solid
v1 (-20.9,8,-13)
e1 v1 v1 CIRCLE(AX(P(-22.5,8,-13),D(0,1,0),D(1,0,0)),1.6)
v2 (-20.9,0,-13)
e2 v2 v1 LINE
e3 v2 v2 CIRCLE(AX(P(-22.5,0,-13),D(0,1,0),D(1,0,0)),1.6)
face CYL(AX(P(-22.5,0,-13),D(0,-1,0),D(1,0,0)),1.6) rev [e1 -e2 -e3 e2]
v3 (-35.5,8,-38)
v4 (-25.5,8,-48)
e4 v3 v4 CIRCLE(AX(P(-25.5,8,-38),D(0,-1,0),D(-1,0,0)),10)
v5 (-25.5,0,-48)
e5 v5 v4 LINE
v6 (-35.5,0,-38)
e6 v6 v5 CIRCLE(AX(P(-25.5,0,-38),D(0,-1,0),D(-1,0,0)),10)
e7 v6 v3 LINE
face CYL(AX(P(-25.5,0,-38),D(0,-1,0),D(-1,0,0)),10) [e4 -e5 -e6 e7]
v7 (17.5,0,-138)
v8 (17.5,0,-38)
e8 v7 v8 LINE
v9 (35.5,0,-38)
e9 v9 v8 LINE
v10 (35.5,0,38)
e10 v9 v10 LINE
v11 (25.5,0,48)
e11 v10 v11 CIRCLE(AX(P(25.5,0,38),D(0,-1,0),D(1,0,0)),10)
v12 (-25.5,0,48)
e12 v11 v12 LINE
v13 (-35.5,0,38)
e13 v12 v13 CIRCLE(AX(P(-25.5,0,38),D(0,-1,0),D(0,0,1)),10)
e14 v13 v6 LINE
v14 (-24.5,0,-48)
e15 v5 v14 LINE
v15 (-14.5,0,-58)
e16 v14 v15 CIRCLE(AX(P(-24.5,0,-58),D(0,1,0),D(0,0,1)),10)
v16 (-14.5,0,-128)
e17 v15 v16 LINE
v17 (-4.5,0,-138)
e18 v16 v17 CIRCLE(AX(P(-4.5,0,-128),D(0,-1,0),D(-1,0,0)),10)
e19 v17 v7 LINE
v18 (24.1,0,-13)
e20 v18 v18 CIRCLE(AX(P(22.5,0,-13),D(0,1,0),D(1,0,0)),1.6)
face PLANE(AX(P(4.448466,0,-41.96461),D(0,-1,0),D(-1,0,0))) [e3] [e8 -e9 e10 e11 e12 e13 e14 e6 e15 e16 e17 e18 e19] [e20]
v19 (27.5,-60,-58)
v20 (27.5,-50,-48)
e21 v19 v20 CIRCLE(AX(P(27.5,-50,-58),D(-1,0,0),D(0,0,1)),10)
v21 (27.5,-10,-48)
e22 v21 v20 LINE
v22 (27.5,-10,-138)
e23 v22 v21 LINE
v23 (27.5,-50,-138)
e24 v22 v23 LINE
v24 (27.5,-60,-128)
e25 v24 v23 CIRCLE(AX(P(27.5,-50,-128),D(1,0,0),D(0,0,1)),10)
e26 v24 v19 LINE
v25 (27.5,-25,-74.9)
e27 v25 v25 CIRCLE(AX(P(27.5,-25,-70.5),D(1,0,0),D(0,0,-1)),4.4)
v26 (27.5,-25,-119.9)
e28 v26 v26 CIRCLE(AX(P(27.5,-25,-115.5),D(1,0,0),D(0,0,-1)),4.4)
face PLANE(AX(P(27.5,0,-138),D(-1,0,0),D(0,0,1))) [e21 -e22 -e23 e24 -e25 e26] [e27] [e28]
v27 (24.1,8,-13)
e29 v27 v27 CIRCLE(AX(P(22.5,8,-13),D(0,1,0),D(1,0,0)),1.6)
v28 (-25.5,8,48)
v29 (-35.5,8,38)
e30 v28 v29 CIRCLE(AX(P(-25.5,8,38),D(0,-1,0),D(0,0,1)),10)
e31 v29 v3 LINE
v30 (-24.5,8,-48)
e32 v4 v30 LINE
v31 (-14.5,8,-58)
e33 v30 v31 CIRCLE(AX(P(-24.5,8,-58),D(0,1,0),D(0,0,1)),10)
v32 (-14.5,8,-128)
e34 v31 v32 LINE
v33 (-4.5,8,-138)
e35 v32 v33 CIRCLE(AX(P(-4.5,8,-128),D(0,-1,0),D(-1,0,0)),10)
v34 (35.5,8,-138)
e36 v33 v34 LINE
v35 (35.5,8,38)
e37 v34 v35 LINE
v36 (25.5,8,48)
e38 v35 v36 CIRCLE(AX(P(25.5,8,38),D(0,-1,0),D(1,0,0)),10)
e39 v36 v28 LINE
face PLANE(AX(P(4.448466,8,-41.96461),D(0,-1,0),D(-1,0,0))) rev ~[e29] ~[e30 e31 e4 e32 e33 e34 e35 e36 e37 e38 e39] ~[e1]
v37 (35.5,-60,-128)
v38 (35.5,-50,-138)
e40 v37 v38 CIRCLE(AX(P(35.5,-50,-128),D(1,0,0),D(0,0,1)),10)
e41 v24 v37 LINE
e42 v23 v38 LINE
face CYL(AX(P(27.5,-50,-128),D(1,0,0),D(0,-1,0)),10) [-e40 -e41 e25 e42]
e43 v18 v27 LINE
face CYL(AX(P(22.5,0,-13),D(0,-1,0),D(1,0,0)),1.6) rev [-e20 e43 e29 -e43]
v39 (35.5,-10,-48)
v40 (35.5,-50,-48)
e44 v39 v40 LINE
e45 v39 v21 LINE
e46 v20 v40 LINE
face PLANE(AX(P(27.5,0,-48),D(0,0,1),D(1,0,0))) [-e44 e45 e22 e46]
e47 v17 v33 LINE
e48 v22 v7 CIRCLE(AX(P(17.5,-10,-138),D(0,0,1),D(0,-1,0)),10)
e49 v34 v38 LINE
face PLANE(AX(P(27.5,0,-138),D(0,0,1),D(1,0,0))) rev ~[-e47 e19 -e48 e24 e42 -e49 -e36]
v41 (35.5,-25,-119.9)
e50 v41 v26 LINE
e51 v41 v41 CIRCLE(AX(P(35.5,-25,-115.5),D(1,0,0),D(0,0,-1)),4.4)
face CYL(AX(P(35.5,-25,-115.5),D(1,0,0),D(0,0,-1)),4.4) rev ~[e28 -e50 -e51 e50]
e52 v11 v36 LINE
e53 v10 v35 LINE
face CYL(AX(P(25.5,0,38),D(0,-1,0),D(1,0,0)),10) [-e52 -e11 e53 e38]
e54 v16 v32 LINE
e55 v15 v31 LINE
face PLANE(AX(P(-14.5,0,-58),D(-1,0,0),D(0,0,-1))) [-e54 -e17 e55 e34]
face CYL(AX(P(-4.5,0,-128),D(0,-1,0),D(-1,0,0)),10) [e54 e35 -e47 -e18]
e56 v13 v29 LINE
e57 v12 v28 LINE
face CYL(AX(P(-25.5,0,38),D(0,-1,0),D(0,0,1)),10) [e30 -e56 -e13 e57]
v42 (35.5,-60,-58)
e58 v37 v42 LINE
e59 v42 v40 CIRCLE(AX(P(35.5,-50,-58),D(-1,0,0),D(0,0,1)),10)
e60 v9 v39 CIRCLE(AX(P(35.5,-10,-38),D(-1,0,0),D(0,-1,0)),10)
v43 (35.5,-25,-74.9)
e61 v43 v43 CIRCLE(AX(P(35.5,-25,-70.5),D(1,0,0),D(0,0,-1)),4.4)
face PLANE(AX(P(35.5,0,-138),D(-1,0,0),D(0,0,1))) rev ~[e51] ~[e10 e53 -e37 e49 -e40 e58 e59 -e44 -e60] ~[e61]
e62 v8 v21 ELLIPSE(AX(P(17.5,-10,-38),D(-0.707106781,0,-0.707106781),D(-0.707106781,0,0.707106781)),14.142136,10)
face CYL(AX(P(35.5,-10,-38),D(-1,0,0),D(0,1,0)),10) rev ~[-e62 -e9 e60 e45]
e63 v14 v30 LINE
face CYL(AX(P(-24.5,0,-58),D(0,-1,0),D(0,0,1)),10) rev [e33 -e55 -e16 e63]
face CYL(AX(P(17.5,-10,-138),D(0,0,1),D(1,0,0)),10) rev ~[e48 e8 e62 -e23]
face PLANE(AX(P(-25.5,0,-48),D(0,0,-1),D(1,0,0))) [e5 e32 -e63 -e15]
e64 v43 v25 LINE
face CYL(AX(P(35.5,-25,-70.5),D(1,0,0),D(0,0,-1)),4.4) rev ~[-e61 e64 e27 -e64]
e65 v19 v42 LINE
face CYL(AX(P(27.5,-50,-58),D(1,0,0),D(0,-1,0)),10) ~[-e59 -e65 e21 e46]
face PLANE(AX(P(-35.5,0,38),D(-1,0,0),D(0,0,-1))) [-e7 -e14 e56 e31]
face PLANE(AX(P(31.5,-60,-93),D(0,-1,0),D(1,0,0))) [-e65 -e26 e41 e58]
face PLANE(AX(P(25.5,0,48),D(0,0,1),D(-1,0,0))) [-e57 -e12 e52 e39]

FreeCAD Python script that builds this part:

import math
import FreeCAD as App
import Part
import Sketcher

V = App.Vector
Q = App.Units.Quantity


def edges_at(feature, points):
    """Names of the edges that pass closest to the given points."""
    edges = feature.Shape.Edges
    near = lambda p: min(range(len(edges)), key=lambda i: edges[i].distToShape(Part.Vertex(*p))[0])
    return sorted({f"Edge{near(p) + 1}" for p in points})


def add_polygon(sketch, points):
    """Adds a closed chain of lines whose ends are joined by coincident constraints."""
    first, n = sketch.GeometryCount, len(points)
    for a, b in zip(points, points[1:] + points[:1]):
        sketch.addGeometry(Part.LineSegment(App.Vector(*a, 0), App.Vector(*b, 0)), False)
    for i in range(n):
        sketch.addConstraint(Sketcher.Constraint("Coincident", first + i, 2, first + (i + 1) % n, 1))

doc = App.newDocument("Part")
body = doc.addObject("PartDesign::Body", "Body")

sketch1 = body.newObject("Sketcher::SketchObject", "Sketch")
sketch1.AttachmentSupport = (doc.getObject("XZ_Plane"), [""])
sketch1.MapMode = "FlatFace"
sketch1.addGeometry([
    Part.LineSegment(V(-24.5, -48, 0), V(-25.5, -48, 0)),
    Part.ArcOfCircle(Part.Circle(V(-25.5, -38, 0), V(0, 0, 1), 10), math.radians(180), math.radians(270)),
    Part.LineSegment(V(-35.5, -38, 0), V(-35.5, 38, 0)),
    Part.ArcOfCircle(Part.Circle(V(-25.5, 38, 0), V(0, 0, 1), 10), math.radians(90), math.radians(180)),
    Part.LineSegment(V(-25.5, 48, 0), V(25.5, 48, 0)),
    Part.ArcOfCircle(Part.Circle(V(25.5, 38, 0), V(0, 0, 1), 10), math.radians(0), math.radians(90)),
    Part.LineSegment(V(35.5, 38, 0), V(35.5, -138, 0)),
    Part.LineSegment(V(35.5, -138, 0), V(-4.5, -138, 0)),
    Part.ArcOfCircle(Part.Circle(V(-4.5, -128, 0), V(0, 0, 1), 10), math.radians(180), math.radians(270)),
    Part.LineSegment(V(-14.5, -128, 0), V(-14.5, -58, 0)),
    Part.ArcOfCircle(Part.Circle(V(-24.5, -58, 0), V(0, 0, 1), 10), math.radians(0), math.radians(90)),
    Part.Circle(V(22.5, -13, 0), V(0, 0, 1), 1.6),
    Part.Circle(V(-22.5, -13, 0), V(0, 0, 1), 1.6),
], False)
sketch1.addConstraint([
    Sketcher.Constraint("Tangent", 0, 2, 1, 2),
    Sketcher.Constraint("Tangent", 1, 1, 2, 1),
    Sketcher.Constraint("Tangent", 2, 2, 3, 2),
    Sketcher.Constraint("Tangent", 3, 1, 4, 1),
    Sketcher.Constraint("Tangent", 4, 2, 5, 2),
    Sketcher.Constraint("Tangent", 5, 1, 6, 1),
    Sketcher.Constraint("Coincident", 6, 2, 7, 1),
    Sketcher.Constraint("Tangent", 7, 2, 8, 2),
    Sketcher.Constraint("Tangent", 8, 1, 9, 1),
    Sketcher.Constraint("Tangent", 9, 2, 10, 1),
    Sketcher.Constraint("Tangent", 10, 2, 0, 1),
    Sketcher.Constraint("Horizontal", 0),
    Sketcher.Constraint("Vertical", 2),
    Sketcher.Constraint("Horizontal", 4),
    Sketcher.Constraint("Vertical", 6),
    Sketcher.Constraint("Horizontal", 7),
    Sketcher.Constraint("Vertical", 9),
    Sketcher.Constraint("Equal", 1, 3),
    Sketcher.Constraint("Equal", 3, 5),
    Sketcher.Constraint("Equal", 5, 8),
    Sketcher.Constraint("Equal", 8, 10),
    Sketcher.Constraint("Equal", 11, 12),
    Sketcher.Constraint("Symmetric", 1, 3, 5, 3, -1, 1),
    Sketcher.Constraint("Symmetric", 11, 3, 12, 3, -2),
    Sketcher.Constraint("Radius", 1, Q("10 mm")),
    Sketcher.Constraint("Diameter", 11, Q("3.2 mm")),
    Sketcher.Constraint("DistanceX", 0, 2, 0, 1, Q("1 mm")),
    Sketcher.Constraint("DistanceX", 4, 1, 4, 2, Q("51 mm")),
    Sketcher.Constraint("DistanceY", 2, 1, 2, 2, Q("76 mm")),
    Sketcher.Constraint("DistanceY", 6, 2, 6, 1, Q("176 mm")),
    Sketcher.Constraint("DistanceY", 11, 3, -1, 1, Q("13 mm")),
    Sketcher.Constraint("DistanceX", 11, 3, 5, 3, Q("3 mm")),
])
pad1 = body.newObject("PartDesign::Pad", "Pad")
pad1.Profile = sketch1
pad1.Length = 8
pad1.Reversed = True

sketch2 = body.newObject("Sketcher::SketchObject", "Sketch001")
sketch2.AttachmentSupport = (doc.getObject("XZ_Plane"), [""])
sketch2.MapMode = "FlatFace"
add_polygon(sketch2, [(28, -48), (28, -138), (36, -138), (36, -48)])
sketch2.addConstraint([
    Sketcher.Constraint("Vertical", 0),
    Sketcher.Constraint("Horizontal", 1),
    Sketcher.Constraint("Vertical", 2),
    Sketcher.Constraint("Horizontal", 3),
    Sketcher.Constraint("DistanceX", 1, 1, 1, 2, Q("8 mm")),
    Sketcher.Constraint("DistanceY", 0, 2, 0, 1, Q("90 mm")),
    Sketcher.Constraint("DistanceY", 0, 2, -1, 1, Q("138 mm")),
    Sketcher.Constraint("DistanceX", -1, 1, 0, 2, Q("27.5 mm")),
])
pad2 = body.newObject("PartDesign::Pad", "Pad001")
pad2.Profile = sketch2
pad2.Length = 60
doc.recompute()

fillet = body.newObject("PartDesign::Fillet", "Fillet")
fillet.Base = (pad2, edges_at(pad2, [(31.5, -60, -138)]))
fillet.Radius = 10
doc.recompute()

fillet2 = body.newObject("PartDesign::Fillet", "Fillet001")
fillet2.Base = (fillet, edges_at(fillet, [(31.5, -60, -48)]))
fillet2.Radius = 10

sketch3 = body.newObject("Sketcher::SketchObject", "Sketch002")
sketch3.AttachmentSupport = (doc.getObject("YZ_Plane"), [""])
sketch3.MapMode = "FlatFace"
sketch3.AttachmentOffset = App.Placement(V(0, 0, 35.5), App.Rotation())
sketch3.addGeometry([
    Part.Circle(V(-25, -70.5, 0), V(0, 0, 1), 4.4),
    Part.Circle(V(-25, -115.5, 0), V(0, 0, 1), 4.4),
], False)
sketch3.addConstraint([
    Sketcher.Constraint("Equal", 0, 1),
    Sketcher.Constraint("Vertical", 0, 3, 1, 3),
    Sketcher.Constraint("Diameter", 0, Q("8.8 mm")),
    Sketcher.Constraint("DistanceX", 0, 3, -1, 1, Q("25 mm")),
    Sketcher.Constraint("DistanceY", 1, 3, 0, 3, Q("45 mm")),
    Sketcher.Constraint("DistanceY", 0, 3, -1, 1, Q("70.5 mm")),
])
pocket1 = body.newObject("PartDesign::Pocket", "Pocket")
pocket1.Profile = sketch3
pocket1.Length = 8
doc.recompute()

fillet3 = body.newObject("PartDesign::Fillet", "Fillet002")
fillet3.Base = (pocket1, edges_at(pocket1, [(27.5, 0, -93)]))
fillet3.Radius = 10
doc.recompute()

fillet4 = body.newObject("PartDesign::Fillet", "Fillet003")
fillet4.Base = (fillet3, edges_at(fillet3, [(26.5, 0, -48)]))
fillet4.Radius = 10

doc.recompute()
